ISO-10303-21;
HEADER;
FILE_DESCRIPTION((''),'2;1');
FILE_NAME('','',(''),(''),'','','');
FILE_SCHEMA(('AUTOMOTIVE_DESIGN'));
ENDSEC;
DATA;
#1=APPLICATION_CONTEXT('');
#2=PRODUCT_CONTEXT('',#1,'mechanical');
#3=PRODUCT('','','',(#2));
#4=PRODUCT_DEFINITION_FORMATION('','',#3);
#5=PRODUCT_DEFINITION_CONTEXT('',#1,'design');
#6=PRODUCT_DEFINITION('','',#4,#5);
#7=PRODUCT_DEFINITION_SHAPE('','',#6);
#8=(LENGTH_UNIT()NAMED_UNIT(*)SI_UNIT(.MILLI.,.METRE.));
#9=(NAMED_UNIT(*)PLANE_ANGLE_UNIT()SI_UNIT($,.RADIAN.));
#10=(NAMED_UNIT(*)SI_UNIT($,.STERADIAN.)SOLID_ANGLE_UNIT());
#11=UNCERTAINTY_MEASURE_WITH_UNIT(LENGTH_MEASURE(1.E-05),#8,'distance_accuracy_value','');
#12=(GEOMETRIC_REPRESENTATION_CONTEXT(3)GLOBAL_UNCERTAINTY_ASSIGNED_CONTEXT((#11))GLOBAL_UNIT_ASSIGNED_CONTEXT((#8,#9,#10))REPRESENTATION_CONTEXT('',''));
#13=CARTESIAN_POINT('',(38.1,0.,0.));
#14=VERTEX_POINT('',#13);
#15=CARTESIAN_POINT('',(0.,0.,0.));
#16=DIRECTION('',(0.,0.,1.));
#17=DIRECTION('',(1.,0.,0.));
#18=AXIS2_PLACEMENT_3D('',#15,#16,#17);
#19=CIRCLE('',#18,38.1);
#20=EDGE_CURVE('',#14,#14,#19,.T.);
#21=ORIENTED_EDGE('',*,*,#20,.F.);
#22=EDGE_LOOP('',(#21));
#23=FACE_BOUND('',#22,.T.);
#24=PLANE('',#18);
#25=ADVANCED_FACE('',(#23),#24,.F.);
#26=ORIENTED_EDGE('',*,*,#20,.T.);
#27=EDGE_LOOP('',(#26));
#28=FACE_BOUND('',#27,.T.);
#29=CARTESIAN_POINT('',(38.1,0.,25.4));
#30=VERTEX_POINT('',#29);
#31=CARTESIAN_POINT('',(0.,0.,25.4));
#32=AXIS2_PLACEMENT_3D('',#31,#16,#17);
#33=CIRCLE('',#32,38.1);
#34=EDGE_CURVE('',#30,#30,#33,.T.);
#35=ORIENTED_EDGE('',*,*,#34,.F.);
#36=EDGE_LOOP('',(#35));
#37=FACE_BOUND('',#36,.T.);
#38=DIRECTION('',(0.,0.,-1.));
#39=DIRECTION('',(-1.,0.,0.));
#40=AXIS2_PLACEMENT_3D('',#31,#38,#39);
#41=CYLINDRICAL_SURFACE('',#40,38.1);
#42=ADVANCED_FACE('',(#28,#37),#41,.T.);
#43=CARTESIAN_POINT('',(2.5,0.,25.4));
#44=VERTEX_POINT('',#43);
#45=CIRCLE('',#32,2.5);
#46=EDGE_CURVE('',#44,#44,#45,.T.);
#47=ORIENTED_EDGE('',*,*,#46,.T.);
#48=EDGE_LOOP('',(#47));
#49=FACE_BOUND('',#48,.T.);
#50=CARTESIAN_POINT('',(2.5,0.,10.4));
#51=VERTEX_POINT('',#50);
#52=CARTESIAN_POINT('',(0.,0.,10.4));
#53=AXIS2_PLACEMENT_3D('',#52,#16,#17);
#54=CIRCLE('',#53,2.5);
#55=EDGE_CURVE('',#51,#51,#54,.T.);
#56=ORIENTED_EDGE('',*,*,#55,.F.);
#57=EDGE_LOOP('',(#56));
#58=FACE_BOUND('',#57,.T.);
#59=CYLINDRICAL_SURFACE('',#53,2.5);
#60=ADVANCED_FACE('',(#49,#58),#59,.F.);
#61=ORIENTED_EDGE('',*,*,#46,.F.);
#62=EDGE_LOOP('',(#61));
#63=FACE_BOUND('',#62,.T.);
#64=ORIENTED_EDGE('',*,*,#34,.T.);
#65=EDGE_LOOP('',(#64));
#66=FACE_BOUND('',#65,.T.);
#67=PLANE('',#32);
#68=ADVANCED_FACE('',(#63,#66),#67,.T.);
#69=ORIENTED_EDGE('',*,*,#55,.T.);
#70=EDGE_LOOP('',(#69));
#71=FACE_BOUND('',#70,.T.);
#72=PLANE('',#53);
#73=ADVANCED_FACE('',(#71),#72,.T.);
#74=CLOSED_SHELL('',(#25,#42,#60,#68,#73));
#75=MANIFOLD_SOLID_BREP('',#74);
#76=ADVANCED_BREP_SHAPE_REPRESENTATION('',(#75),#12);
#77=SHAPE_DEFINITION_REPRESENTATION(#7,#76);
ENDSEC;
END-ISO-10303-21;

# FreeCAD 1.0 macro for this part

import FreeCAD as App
import Part
import Sketcher

V = App.Vector
Q = App.Units.Quantity

doc = App.newDocument("Part")
body = doc.addObject("PartDesign::Body", "Body")

# Sketch on XY plane
sketch1 = body.newObject("Sketcher::SketchObject", "Sketch")
sketch1.AttachmentSupport = (doc.getObject("XY_Plane"), [""])
sketch1.MapMode = "FlatFace"
sketch1.addGeometry(Part.Circle(V(0, 0, 0), V(0, 0, 1), 38), False)
sketch1.addConstraint([
    Sketcher.Constraint("Coincident", 0, 3, -1, 1),
    Sketcher.Constraint("Diameter", 0, Q("76.2 mm")),
])
pad1 = body.newObject("PartDesign::Pad", "Pad")
pad1.Profile = sketch1
pad1.Length = 25.4

# Sketch on XY plane
sketch2 = body.newObject("Sketcher::SketchObject", "Sketch001")
sketch2.AttachmentSupport = (doc.getObject("XY_Plane"), [""])
sketch2.MapMode = "FlatFace"
sketch2.AttachmentOffset = App.Placement(V(0, 0, 25.4), App.Rotation())
sketch2.addGeometry(Part.Circle(V(0, 0, 0), V(0, 0, 1), 2.5), False)
sketch2.addConstraint([
    Sketcher.Constraint("Coincident", 0, 3, -1, 1),
    Sketcher.Constraint("Diameter", 0, Q("5 mm")),
])
pocket1 = body.newObject("PartDesign::Pocket", "Pocket")
pocket1.Profile = sketch2
pocket1.Length = 15

doc.recompute()
